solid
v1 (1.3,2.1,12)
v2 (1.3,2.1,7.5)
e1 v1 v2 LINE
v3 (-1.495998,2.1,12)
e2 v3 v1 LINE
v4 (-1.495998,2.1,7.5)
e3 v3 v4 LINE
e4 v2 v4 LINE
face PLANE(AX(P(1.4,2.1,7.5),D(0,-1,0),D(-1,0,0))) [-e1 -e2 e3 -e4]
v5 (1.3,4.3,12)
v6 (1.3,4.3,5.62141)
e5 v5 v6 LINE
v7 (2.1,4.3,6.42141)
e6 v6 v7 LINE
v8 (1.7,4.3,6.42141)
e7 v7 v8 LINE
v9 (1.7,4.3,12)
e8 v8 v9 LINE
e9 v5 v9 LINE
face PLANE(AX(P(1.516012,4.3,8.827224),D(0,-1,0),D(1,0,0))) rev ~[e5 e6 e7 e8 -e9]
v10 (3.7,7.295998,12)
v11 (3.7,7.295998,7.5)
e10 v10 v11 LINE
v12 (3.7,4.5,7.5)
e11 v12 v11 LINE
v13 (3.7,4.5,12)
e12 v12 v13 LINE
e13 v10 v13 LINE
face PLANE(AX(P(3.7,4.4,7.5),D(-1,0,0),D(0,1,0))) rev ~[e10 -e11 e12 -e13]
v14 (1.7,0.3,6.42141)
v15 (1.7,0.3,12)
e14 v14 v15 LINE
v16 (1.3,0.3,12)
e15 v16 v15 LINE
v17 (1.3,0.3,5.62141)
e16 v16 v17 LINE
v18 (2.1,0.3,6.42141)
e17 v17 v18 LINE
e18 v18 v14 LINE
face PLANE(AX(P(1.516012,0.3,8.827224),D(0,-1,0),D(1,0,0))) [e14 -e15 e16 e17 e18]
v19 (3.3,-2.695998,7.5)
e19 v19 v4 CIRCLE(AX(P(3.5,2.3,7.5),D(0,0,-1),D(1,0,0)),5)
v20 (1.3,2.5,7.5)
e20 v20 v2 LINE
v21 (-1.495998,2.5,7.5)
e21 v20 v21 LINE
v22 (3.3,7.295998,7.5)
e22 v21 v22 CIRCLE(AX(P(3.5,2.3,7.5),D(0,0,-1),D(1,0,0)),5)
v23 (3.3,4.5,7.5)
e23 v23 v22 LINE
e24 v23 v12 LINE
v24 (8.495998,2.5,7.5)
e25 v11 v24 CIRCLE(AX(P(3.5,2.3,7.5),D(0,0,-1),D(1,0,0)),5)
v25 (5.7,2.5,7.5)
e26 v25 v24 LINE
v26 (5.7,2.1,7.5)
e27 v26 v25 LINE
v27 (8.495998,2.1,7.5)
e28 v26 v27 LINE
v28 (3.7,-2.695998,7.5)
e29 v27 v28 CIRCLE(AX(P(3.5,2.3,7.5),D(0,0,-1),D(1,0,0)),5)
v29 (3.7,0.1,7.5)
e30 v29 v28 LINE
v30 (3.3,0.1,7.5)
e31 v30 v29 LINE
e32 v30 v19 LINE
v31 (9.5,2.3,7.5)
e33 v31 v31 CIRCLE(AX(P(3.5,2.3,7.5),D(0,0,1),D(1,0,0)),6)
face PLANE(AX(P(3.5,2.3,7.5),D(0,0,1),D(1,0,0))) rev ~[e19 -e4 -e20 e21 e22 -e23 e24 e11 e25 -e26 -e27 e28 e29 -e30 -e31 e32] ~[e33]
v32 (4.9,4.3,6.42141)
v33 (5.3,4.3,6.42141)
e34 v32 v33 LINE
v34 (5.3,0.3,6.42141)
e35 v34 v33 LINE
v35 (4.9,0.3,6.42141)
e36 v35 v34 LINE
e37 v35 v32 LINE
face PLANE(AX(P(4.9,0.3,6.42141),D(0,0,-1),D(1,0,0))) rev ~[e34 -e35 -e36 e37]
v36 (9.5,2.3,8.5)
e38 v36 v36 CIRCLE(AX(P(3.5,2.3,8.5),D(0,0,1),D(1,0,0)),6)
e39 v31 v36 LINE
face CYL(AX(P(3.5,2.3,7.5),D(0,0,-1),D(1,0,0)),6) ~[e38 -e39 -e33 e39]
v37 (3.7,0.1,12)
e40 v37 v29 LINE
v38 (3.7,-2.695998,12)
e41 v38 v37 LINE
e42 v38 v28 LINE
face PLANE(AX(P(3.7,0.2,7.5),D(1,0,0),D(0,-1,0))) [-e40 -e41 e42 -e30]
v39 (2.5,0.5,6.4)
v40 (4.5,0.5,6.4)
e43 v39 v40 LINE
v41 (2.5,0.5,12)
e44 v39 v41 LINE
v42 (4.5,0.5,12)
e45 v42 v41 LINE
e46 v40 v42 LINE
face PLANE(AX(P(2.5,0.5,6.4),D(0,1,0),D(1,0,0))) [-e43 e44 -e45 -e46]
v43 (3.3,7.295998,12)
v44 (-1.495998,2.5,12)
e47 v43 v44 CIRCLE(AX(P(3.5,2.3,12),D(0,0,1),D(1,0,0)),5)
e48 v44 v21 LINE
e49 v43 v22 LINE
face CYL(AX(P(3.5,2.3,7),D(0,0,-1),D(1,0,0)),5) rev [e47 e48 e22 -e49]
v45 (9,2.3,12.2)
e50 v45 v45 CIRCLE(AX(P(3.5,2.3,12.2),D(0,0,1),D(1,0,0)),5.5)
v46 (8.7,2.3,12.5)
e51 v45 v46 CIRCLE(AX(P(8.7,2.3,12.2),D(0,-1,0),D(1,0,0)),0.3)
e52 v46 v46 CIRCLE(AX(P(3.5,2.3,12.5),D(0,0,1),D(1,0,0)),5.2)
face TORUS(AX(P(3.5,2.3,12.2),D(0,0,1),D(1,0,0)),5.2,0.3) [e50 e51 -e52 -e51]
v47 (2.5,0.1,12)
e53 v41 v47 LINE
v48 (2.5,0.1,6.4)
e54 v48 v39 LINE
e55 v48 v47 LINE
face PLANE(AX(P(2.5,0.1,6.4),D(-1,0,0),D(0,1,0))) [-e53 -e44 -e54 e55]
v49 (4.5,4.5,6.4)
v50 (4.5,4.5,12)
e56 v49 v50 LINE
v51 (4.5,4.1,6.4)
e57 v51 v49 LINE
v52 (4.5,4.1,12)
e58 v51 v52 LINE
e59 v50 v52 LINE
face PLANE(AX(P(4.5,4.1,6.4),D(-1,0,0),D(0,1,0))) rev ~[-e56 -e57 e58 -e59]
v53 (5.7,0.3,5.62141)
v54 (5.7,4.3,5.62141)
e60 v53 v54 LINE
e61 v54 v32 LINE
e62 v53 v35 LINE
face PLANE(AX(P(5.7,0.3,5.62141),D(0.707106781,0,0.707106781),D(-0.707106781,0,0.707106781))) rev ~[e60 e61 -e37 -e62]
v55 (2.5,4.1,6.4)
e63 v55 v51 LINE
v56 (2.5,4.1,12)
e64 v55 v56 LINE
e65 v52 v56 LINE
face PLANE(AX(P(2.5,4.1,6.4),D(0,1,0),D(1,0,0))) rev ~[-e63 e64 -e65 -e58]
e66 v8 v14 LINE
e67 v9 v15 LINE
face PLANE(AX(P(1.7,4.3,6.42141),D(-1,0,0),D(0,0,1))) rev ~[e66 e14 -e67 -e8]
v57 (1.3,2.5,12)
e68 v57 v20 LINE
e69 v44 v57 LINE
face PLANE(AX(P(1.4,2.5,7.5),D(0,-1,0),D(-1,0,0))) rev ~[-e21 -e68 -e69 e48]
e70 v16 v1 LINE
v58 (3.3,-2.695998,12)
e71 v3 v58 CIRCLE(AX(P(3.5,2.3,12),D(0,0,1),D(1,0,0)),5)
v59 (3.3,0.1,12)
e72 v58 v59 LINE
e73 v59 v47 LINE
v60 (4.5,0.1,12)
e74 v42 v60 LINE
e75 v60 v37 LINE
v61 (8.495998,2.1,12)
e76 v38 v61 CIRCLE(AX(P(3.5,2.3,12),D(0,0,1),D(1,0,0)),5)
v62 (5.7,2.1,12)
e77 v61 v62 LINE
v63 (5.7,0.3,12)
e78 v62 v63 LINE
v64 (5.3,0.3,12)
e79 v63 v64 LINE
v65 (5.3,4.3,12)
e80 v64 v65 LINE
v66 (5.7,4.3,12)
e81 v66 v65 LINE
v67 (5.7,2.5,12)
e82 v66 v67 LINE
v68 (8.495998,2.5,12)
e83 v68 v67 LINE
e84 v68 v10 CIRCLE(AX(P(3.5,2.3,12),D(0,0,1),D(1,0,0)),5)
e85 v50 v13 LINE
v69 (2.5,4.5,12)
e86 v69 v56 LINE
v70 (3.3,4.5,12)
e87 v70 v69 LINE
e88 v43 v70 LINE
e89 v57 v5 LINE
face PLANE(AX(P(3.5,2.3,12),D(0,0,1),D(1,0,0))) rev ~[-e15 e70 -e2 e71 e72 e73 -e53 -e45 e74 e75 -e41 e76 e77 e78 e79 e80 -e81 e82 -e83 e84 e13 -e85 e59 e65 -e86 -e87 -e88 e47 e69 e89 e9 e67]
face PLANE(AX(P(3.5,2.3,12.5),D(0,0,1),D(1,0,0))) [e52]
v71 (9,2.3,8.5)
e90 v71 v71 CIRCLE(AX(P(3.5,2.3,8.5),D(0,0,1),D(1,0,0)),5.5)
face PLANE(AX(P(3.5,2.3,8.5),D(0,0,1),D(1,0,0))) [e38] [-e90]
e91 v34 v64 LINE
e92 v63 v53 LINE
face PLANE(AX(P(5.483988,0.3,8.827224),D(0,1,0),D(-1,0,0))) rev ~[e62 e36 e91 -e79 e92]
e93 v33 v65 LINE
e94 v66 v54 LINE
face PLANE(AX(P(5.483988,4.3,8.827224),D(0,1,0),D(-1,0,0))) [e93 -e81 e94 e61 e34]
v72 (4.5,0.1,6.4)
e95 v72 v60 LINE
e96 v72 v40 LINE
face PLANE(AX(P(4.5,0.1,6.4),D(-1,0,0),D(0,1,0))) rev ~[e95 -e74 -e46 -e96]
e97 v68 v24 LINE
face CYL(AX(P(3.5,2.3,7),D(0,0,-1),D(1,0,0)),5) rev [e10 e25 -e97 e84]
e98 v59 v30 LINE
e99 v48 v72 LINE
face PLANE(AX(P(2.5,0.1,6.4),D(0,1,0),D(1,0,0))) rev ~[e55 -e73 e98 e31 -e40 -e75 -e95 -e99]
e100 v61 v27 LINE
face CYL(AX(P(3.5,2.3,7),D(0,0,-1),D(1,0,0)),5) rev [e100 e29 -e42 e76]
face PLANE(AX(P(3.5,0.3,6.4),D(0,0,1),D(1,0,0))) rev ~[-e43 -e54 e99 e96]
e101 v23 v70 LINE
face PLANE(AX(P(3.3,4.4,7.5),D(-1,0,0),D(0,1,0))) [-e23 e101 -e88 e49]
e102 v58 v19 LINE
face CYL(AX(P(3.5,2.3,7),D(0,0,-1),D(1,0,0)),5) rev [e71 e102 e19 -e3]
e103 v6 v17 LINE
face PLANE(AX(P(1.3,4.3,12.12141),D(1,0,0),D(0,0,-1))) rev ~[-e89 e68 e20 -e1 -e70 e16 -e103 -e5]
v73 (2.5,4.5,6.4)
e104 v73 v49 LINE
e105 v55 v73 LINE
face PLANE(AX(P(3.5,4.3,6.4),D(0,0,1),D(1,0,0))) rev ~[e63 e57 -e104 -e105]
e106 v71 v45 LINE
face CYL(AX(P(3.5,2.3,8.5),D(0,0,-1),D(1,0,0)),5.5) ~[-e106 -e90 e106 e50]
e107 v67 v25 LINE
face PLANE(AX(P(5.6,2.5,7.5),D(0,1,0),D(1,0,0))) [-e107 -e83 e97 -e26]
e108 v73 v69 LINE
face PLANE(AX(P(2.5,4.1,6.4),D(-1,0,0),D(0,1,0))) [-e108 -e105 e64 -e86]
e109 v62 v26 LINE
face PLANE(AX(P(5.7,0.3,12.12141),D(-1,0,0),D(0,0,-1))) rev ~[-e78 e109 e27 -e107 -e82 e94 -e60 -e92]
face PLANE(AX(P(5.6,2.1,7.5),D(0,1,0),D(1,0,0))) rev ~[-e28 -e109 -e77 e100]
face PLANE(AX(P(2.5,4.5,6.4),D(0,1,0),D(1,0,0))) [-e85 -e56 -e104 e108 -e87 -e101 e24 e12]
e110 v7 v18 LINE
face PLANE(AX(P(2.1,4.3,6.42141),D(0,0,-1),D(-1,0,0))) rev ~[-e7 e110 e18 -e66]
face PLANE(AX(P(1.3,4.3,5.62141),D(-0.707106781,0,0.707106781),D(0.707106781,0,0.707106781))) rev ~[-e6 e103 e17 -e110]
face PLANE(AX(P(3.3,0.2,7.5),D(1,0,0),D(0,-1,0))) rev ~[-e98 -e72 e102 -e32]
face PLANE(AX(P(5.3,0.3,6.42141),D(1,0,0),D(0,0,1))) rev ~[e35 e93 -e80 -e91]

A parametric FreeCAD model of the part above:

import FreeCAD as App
import Part
import Sketcher
from FreeCAD import Vector
Q = App.Units.Quantity


def edges_at(feature, points):
    """Names of the edges that pass closest to the given points."""
    edges = feature.Shape.Edges
    near = lambda p: min(range(len(edges)), key=lambda i: edges[i].distToShape(Part.Vertex(*p))[0])
    return sorted({f"Edge{near(p) + 1}" for p in points})

doc = App.newDocument("Part")
body = doc.addObject("PartDesign::Body", "Body")

sketch1 = body.newObject("Sketcher::SketchObject", "Sketch")
sketch1.AttachmentSupport = (doc.getObject("XZ_Plane"), [""])
sketch1.MapMode = "FlatFace"
sketch1.AttachmentOffset = App.Placement(Vector(0, 0, 2), App.Rotation())
sketch1.addGeometry([
    Part.LineSegment(Vector(2.2, 4.62, 0), Vector(2.2, -1.88, 0)),
    Part.LineSegment(Vector(2.2, -1.88, 0), Vector(1.4, -1.08, 0)),
    Part.LineSegment(Vector(1.4, -1.08, 0), Vector(1.8, -1.08, 0)),
    Part.LineSegment(Vector(1.8, -1.08, 0), Vector(1.8, 4.62, 0)),
    Part.LineSegment(Vector(1.8, 4.62, 0), Vector(2.2, 4.62, 0)),
], False)
sketch1.addConstraint([
    Sketcher.Constraint("Coincident", 0, 2, 1, 1),
    Sketcher.Constraint("Coincident", 1, 2, 2, 1),
    Sketcher.Constraint("Coincident", 2, 2, 3, 1),
    Sketcher.Constraint("Coincident", 3, 2, 4, 1),
    Sketcher.Constraint("Coincident", 4, 2, 0, 1),
    Sketcher.Constraint("Vertical", 0),
    Sketcher.Constraint("Horizontal", 2),
    Sketcher.Constraint("Vertical", 3),
    Sketcher.Constraint("Horizontal", 4),
    Sketcher.Constraint("Equal", 2, 4),
    Sketcher.Constraint("Angle", 1, Q("135 deg")),
    Sketcher.Constraint("DistanceX", 2, 1, 2, 2, Q("0.4 mm")),
    Sketcher.Constraint("DistanceY", 0, 2, 0, 1, Q("6.5 mm")),
    Sketcher.Constraint("DistanceX", -1, 1, 0, 2, Q("2.2 mm")),
    Sketcher.Constraint("DistanceY", 0, 2, -1, 1, Q("1.87859 mm")),
])
pad1 = body.newObject("PartDesign::Pad", "Pad")
pad1.Profile = sketch1
pad1.Length = 4
pad1.Reversed = True
body2 = doc.addObject("PartDesign::Body", "Body001")

sketch2 = body2.newObject("Sketcher::SketchObject", "Sketch001")
sketch2.AttachmentSupport = (doc.getObject("XY_Plane001"), [""])
sketch2.MapMode = "FlatFace"
sketch2.AttachmentOffset = App.Placement(Vector(0, 0, -1.1), App.Rotation())
sketch2.addGeometry([
    Part.LineSegment(Vector(-1, -1.8, 0), Vector(-1, -2.2, 0)),
    Part.LineSegment(Vector(-1, -2.2, 0), Vector(1, -2.2, 0)),
    Part.LineSegment(Vector(1, -2.2, 0), Vector(1, -1.8, 0)),
    Part.LineSegment(Vector(1, -1.8, 0), Vector(-1, -1.8, 0)),
], False)
sketch2.addConstraint([
    Sketcher.Constraint("Coincident", 0, 2, 1, 1),
    Sketcher.Constraint("Coincident", 1, 2, 2, 1),
    Sketcher.Constraint("Coincident", 2, 2, 3, 1),
    Sketcher.Constraint("Coincident", 3, 2, 0, 1),
    Sketcher.Constraint("Vertical", 0),
    Sketcher.Constraint("Horizontal", 1),
    Sketcher.Constraint("Vertical", 2),
    Sketcher.Constraint("Horizontal", 3),
    Sketcher.Constraint("DistanceX", 1, 1, 1, 2, Q("2 mm")),
    Sketcher.Constraint("DistanceY", 0, 2, 0, 1, Q("0.4 mm")),
    Sketcher.Constraint("DistanceX", 0, 2, -1, 1, Q("1 mm")),
    Sketcher.Constraint("DistanceY", 0, 2, -1, 1, Q("2.2 mm")),
])
pad2 = body2.newObject("PartDesign::Pad", "Pad001")
pad2.Profile = sketch2
pad2.Length = 5.7
body3 = doc.addObject("PartDesign::Body", "Body002")

sketch3 = body3.newObject("Sketcher::SketchObject", "Sketch002")
sketch3.AttachmentSupport = (doc.getObject("XZ_Plane002"), [""])
sketch3.MapMode = "FlatFace"
sketch3.AttachmentOffset = App.Placement(Vector(0, 0, -2), App.Rotation())
sketch3.addGeometry([
    Part.LineSegment(Vector(-2.2, 4.62, 0), Vector(-2.2, -1.88, 0)),
    Part.LineSegment(Vector(-2.2, -1.88, 0), Vector(-1.4, -1.08, 0)),
    Part.LineSegment(Vector(-1.4, -1.08, 0), Vector(-1.8, -1.08, 0)),
    Part.LineSegment(Vector(-1.8, -1.08, 0), Vector(-1.8, 4.62, 0)),
    Part.LineSegment(Vector(-1.8, 4.62, 0), Vector(-2.2, 4.62, 0)),
], False)
sketch3.addConstraint([
    Sketcher.Constraint("Coincident", 0, 2, 1, 1),
    Sketcher.Constraint("Coincident", 1, 2, 2, 1),
    Sketcher.Constraint("Coincident", 2, 2, 3, 1),
    Sketcher.Constraint("Coincident", 3, 2, 4, 1),
    Sketcher.Constraint("Coincident", 4, 2, 0, 1),
    Sketcher.Constraint("Vertical", 0),
    Sketcher.Constraint("Horizontal", 2),
    Sketcher.Constraint("Vertical", 3),
    Sketcher.Constraint("Horizontal", 4),
    Sketcher.Constraint("Equal", 2, 4),
    Sketcher.Constraint("Angle", 1, Q("45 deg")),
    Sketcher.Constraint("DistanceX", 2, 2, 2, 1, Q("0.4 mm")),
    Sketcher.Constraint("DistanceY", 0, 2, 0, 1, Q("6.5 mm")),
    Sketcher.Constraint("DistanceX", 0, 2, -1, 1, Q("2.2 mm")),
    Sketcher.Constraint("DistanceY", 0, 2, -1, 1, Q("1.87859 mm")),
])
pad3 = body3.newObject("PartDesign::Pad", "Pad002")
pad3.Profile = sketch3
pad3.Length = 4
body4 = doc.addObject("PartDesign::Body", "Body003")

sketch4 = body4.newObject("Sketcher::SketchObject", "Sketch003")
sketch4.AttachmentSupport = (doc.getObject("XY_Plane003"), [""])
sketch4.MapMode = "FlatFace"
sketch4.AttachmentOffset = App.Placement(Vector(0, 0, -1.1), App.Rotation())
sketch4.addGeometry([
    Part.LineSegment(Vector(-1, 2.2, 0), Vector(-1, 1.8, 0)),
    Part.LineSegment(Vector(-1, 1.8, 0), Vector(1, 1.8, 0)),
    Part.LineSegment(Vector(1, 1.8, 0), Vector(1, 2.2, 0)),
    Part.LineSegment(Vector(1, 2.2, 0), Vector(-1, 2.2, 0)),
], False)
sketch4.addConstraint([
    Sketcher.Constraint("Coincident", 0, 2, 1, 1),
    Sketcher.Constraint("Coincident", 1, 2, 2, 1),
    Sketcher.Constraint("Coincident", 2, 2, 3, 1),
    Sketcher.Constraint("Coincident", 3, 2, 0, 1),
    Sketcher.Constraint("Vertical", 0),
    Sketcher.Constraint("Horizontal", 1),
    Sketcher.Constraint("Vertical", 2),
    Sketcher.Constraint("Horizontal", 3),
    Sketcher.Constraint("DistanceX", 1, 1, 1, 2, Q("2 mm")),
    Sketcher.Constraint("DistanceY", 0, 2, 0, 1, Q("0.4 mm")),
    Sketcher.Constraint("DistanceX", 0, 2, -1, 1, Q("1 mm")),
    Sketcher.Constraint("DistanceY", -1, 1, 0, 2, Q("1.8 mm")),
])
pad4 = body4.newObject("PartDesign::Pad", "Pad003")
pad4.Profile = sketch4
pad4.Length = 5.7
body5 = doc.addObject("PartDesign::Body", "Body004")

sketch5 = body5.newObject("Sketcher::SketchObject", "Sketch004")
sketch5.AttachmentSupport = (doc.getObject("XY_Plane004"), [""])
sketch5.MapMode = "FlatFace"
sketch5.addGeometry([
    Part.LineSegment(Vector(2.1, 0.2, 0), Vector(2.1, -0.2, 0)),
    Part.LineSegment(Vector(2.1, -0.2, 0), Vector(5.1, -0.2, 0)),
    Part.LineSegment(Vector(5.1, -0.2, 0), Vector(5.1, 0.2, 0)),
    Part.LineSegment(Vector(5.1, 0.2, 0), Vector(2.1, 0.2, 0)),
], False)
sketch5.addConstraint([
    Sketcher.Constraint("Coincident", 0, 2, 1, 1),
    Sketcher.Constraint("Coincident", 1, 2, 2, 1),
    Sketcher.Constraint("Coincident", 2, 2, 3, 1),
    Sketcher.Constraint("Coincident", 3, 2, 0, 1),
    Sketcher.Constraint("Vertical", 0),
    Sketcher.Constraint("Horizontal", 1),
    Sketcher.Constraint("Vertical", 2),
    Sketcher.Constraint("Horizontal", 3),
    Sketcher.Constraint("DistanceX", 1, 1, 1, 2, Q("3 mm")),
    Sketcher.Constraint("DistanceY", 0, 2, 0, 1, Q("0.4 mm")),
    Sketcher.Constraint("DistanceX", -1, 1, 0, 2, Q("2.1 mm")),
    Sketcher.Constraint("DistanceY", 0, 2, -1, 1, Q("0.2 mm")),
])
pad5 = body5.newObject("PartDesign::Pad", "Pad004")
pad5.Profile = sketch5
pad5.Length = 4.7
body6 = doc.addObject("PartDesign::Body", "Body005")
body6.AllowCompound = True
doc.recompute()

body6.BaseFeature = body5
doc.recompute()

body7 = doc.addObject("PartDesign::Body", "Body006")
body7.BaseFeature = body5
body7.Placement = App.Placement(Vector(0, 0, 0), App.Rotation(Vector(0, 0, 1), 90))
boolean = body6.newObject("PartDesign::Boolean", "Boolean")
boolean.Type = "Fuse"
boolean.addObjects([body7])
doc.recompute()

body8 = doc.addObject("PartDesign::Body", "Body007")
body8.BaseFeature = body5
body8.Placement = App.Placement(Vector(0, 0, 0), App.Rotation(Vector(0, 0, 1), 180))
boolean2 = body6.newObject("PartDesign::Boolean", "Boolean001")
boolean2.Type = "Fuse"
boolean2.addObjects([body8])
doc.recompute()

body5.Placement = App.Placement(Vector(0, 0, 0), App.Rotation(Vector(0, 0, 1), 270))
boolean3 = body6.newObject("PartDesign::Boolean", "Boolean002")
boolean3.Type = "Fuse"
boolean3.addObjects([body5])
body9 = doc.addObject("PartDesign::Body", "Body008")

sketch6 = body9.newObject("Sketcher::SketchObject", "Sketch005")
sketch6.AttachmentSupport = (doc.getObject("XY_Plane008"), [""])
sketch6.MapMode = "FlatFace"
sketch6.AttachmentOffset = App.Placement(Vector(0, 0, -0.5), App.Rotation())
sketch6.addGeometry(Part.Circle(Vector(0, 0, 0), Vector(0, 0, 1), 5), False)
sketch6.addConstraint([
    Sketcher.Constraint("Coincident", 0, 3, -1, 1),
    Sketcher.Constraint("Diameter", 0, Q("10 mm")),
])
pad6 = body9.newObject("PartDesign::Pad", "Pad005")
pad6.Profile = sketch6
pad6.Length = 5
body10 = doc.addObject("PartDesign::Body", "Body009")

sketch7 = body10.newObject("Sketcher::SketchObject", "Sketch006")
sketch7.AttachmentSupport = (doc.getObject("XY_Plane009"), [""])
sketch7.MapMode = "FlatFace"
sketch7.addGeometry(Part.Circle(Vector(0, 0, 0), Vector(0, 0, 1), 6), False)
sketch7.addConstraint([
    Sketcher.Constraint("Coincident", 0, 3, -1, 1),
    Sketcher.Constraint("Diameter", 0, Q("12 mm")),
])
pad7 = body10.newObject("PartDesign::Pad", "Pad006")
pad7.Profile = sketch7
pad7.Length = 1
body11 = doc.addObject("PartDesign::Body", "Body010")

sketch8 = body11.newObject("Sketcher::SketchObject", "Sketch007")
sketch8.AttachmentSupport = (doc.getObject("XY_Plane010"), [""])
sketch8.MapMode = "FlatFace"
sketch8.AttachmentOffset = App.Placement(Vector(0, 0, 1), App.Rotation())
sketch8.addGeometry(Part.Circle(Vector(0, 0, 0), Vector(0, 0, 1), 6), False)
sketch8.addConstraint([
    Sketcher.Constraint("Coincident", 0, 3, -1, 1),
    Sketcher.Constraint("Diameter", 0, Q("11 mm")),
])
pad8 = body11.newObject("PartDesign::Pad", "Pad007")
pad8.Profile = sketch8
pad8.Length = 4
doc.recompute()

boolean4 = body11.newObject("PartDesign::Boolean", "Boolean003")
boolean4.Type = "Fuse"
boolean4.addObjects([body10])
doc.recompute()

boolean5 = body11.newObject("PartDesign::Boolean", "Boolean004")
boolean5.Type = "Cut"
boolean5.addObjects([body9])
doc.recompute()

fillet = body11.newObject("PartDesign::Fillet", "Fillet")
fillet.Base = (boolean5, edges_at(boolean5, [(-5.5, 0, 5)]))
fillet.Radius = 0.3
doc.recompute()

boolean6 = body11.newObject("PartDesign::Boolean", "Boolean005")
boolean6.Type = "Fuse"
boolean6.addObjects([body])
doc.recompute()

boolean7 = body11.newObject("PartDesign::Boolean", "Boolean006")
boolean7.Type = "Fuse"
boolean7.addObjects([body2])
doc.recompute()

boolean8 = body11.newObject("PartDesign::Boolean", "Boolean007")
boolean8.Type = "Fuse"
boolean8.addObjects([body3])
doc.recompute()

boolean9 = body11.newObject("PartDesign::Boolean", "Boolean008")
boolean9.Type = "Fuse"
boolean9.addObjects([body4])
doc.recompute()

boolean10 = body11.newObject("PartDesign::Boolean", "Boolean009")
boolean10.Type = "Fuse"
boolean10.addObjects([body6])
body12 = doc.addObject("PartDesign::Body", "Body011")
doc.recompute()

body11.Placement = App.Placement(Vector(3.5, 2.3, 7.5), App.Rotation(Vector(0, 0, 1), 0))
boolean11 = body12.newObject("PartDesign::Boolean", "Boolean010")
boolean11.Type = "Fuse"
boolean11.addObjects([body11])

doc.recompute()
